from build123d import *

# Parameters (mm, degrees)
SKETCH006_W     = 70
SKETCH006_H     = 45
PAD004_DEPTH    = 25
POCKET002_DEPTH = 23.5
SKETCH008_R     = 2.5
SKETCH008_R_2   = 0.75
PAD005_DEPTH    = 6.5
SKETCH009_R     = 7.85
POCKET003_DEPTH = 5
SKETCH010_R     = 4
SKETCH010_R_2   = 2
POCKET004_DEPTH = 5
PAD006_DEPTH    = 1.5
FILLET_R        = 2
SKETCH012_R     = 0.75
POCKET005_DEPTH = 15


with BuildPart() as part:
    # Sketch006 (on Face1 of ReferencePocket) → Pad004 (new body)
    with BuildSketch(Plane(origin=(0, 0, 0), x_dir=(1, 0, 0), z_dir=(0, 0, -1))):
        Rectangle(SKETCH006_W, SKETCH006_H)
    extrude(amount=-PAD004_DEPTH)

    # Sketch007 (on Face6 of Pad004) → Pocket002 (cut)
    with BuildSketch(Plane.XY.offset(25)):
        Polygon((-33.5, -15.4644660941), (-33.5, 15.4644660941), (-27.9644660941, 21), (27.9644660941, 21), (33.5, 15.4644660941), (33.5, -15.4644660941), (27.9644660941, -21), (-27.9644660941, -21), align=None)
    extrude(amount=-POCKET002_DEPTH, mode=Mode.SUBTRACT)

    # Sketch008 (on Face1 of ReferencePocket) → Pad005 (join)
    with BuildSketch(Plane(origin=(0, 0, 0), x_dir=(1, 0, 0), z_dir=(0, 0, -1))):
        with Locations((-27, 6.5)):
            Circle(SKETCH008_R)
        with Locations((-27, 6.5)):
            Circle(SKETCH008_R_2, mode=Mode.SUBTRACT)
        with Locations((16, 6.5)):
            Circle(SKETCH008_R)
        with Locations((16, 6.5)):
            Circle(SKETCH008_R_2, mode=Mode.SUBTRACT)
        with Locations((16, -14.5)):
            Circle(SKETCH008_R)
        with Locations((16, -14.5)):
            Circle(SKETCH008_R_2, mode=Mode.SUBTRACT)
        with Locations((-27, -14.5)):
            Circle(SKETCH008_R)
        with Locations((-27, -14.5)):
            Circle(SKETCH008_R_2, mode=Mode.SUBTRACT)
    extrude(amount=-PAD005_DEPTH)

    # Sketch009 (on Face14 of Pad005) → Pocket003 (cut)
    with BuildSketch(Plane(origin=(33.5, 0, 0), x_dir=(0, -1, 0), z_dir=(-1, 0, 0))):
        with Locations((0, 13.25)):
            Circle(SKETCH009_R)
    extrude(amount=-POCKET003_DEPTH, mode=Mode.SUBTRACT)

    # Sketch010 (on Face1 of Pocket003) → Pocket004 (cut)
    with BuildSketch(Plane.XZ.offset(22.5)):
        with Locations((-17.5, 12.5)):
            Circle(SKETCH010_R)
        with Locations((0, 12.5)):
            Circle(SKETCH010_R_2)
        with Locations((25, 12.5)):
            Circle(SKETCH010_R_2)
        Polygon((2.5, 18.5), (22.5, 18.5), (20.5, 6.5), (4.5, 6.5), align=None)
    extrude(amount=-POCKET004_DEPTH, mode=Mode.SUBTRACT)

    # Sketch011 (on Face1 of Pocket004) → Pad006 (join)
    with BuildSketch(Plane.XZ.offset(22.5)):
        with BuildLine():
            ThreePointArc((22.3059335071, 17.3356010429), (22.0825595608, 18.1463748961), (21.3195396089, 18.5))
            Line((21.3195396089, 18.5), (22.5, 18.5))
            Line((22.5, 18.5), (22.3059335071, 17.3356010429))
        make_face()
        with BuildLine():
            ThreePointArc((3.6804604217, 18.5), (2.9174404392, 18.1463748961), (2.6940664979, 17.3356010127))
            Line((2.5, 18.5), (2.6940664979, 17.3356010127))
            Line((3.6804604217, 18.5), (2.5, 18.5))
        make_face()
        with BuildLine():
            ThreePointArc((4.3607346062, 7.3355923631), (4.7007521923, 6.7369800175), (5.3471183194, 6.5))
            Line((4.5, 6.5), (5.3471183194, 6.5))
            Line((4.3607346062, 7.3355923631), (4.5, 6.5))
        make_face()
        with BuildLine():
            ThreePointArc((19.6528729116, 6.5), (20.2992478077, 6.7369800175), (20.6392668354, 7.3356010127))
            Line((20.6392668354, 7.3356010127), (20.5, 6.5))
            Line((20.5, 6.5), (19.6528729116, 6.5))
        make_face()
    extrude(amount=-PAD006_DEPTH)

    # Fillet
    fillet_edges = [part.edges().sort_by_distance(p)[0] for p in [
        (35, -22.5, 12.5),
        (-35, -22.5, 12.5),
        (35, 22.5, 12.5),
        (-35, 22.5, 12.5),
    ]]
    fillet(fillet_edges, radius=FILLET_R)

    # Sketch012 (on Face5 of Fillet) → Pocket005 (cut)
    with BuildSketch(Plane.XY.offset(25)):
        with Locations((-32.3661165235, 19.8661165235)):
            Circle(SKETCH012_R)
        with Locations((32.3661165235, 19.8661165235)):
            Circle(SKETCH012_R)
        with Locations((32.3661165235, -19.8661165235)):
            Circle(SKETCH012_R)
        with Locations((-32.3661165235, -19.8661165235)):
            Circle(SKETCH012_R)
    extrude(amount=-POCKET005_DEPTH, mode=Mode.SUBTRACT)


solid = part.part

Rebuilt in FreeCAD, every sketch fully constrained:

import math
import FreeCAD as App
import Part
import Sketcher
Q = App.Units.Quantity


def edges_at(feature, points):
    """Names of the edges that pass closest to the given points."""
    edges = feature.Shape.Edges
    near = lambda p: min(range(len(edges)), key=lambda i: edges[i].distToShape(Part.Vertex(*p))[0])
    return sorted({f"Edge{near(p) + 1}" for p in points})


def add_polygon(sketch, points):
    """Adds a closed chain of lines whose ends are joined by coincident constraints."""
    first, n = sketch.GeometryCount, len(points)
    for a, b in zip(points, points[1:] + points[:1]):
        sketch.addGeometry(Part.LineSegment(App.Vector(*a, 0), App.Vector(*b, 0)), False)
    for i in range(n):
        sketch.addConstraint(Sketcher.Constraint("Coincident", first + i, 2, first + (i + 1) % n, 1))

doc = App.newDocument("Part")
body = doc.addObject("PartDesign::Body", "Body")

sketch1 = doc.addObject("Sketcher::SketchObject", "Sketch")
body.addObject(sketch1)
sketch1.AttachmentSupport = (doc.XY_Plane, [""])
sketch1.MapMode = "FlatFace"
add_polygon(sketch1, [(-35, -22), (-35, 22), (35, 22), (35, -22)])
sketch1.addConstraint(Sketcher.Constraint("Vertical", 0))
sketch1.addConstraint(Sketcher.Constraint("Horizontal", 1))
sketch1.addConstraint(Sketcher.Constraint("Vertical", 2))
sketch1.addConstraint(Sketcher.Constraint("Horizontal", 3))
sketch1.addConstraint(Sketcher.Constraint("Symmetric", 0, 2, 2, 2, -1, 1))
sketch1.addConstraint(Sketcher.Constraint("DistanceX", 1, 1, 1, 2, Q("70 mm")))
sketch1.addConstraint(Sketcher.Constraint("DistanceY", 0, 1, 0, 2, Q("45 mm")))
pad1 = doc.addObject("PartDesign::Pad", "Pad")
body.addObject(pad1)
pad1.Profile = sketch1
pad1.Length = 25

sketch2 = doc.addObject("Sketcher::SketchObject", "Sketch001")
body.addObject(sketch2)
sketch2.AttachmentSupport = (doc.XY_Plane, [""])
sketch2.MapMode = "FlatFace"
sketch2.AttachmentOffset = App.Placement(App.Vector(0, 0, 25), App.Rotation())
add_polygon(sketch2, [(-34, 15), (-34, -15), (-28, -21), (28, -21), (34, -15), (34, 15), (28, 21), (-28, 21)])
sketch2.addConstraint(Sketcher.Constraint("Vertical", 0))
sketch2.addConstraint(Sketcher.Constraint("Horizontal", 2))
sketch2.addConstraint(Sketcher.Constraint("Vertical", 4))
sketch2.addConstraint(Sketcher.Constraint("Horizontal", 6))
sketch2.addConstraint(Sketcher.Constraint("Symmetric", 0, 2, 4, 2, -1, 1))
sketch2.addConstraint(Sketcher.Constraint("Symmetric", 1, 2, 5, 2, -1, 1))
sketch2.addConstraint(Sketcher.Constraint("Perpendicular", 1, 3))
sketch2.addConstraint(Sketcher.Constraint("Perpendicular", 5, 7))
sketch2.addConstraint(Sketcher.Constraint("Horizontal", 0, 2, 3, 2))
sketch2.addConstraint(Sketcher.Constraint("Horizontal", 4, 2, 7, 2))
sketch2.addConstraint(Sketcher.Constraint("Vertical", 2, 2, 5, 2))
sketch2.addConstraint(Sketcher.Constraint("DistanceY", 1, 2, -1, 1, Q("21 mm")))
sketch2.addConstraint(Sketcher.Constraint("DistanceX", 0, 2, 3, 2, Q("67 mm")))
sketch2.addConstraint(Sketcher.Constraint("DistanceX", 2, 1, 2, 2, Q("55.928932 mm")))
pocket1 = doc.addObject("PartDesign::Pocket", "Pocket")
body.addObject(pocket1)
pocket1.Profile = sketch2
pocket1.Length = 23.5

sketch3 = doc.addObject("Sketcher::SketchObject", "Sketch002")
body.addObject(sketch3)
sketch3.AttachmentSupport = (doc.XY_Plane, [""])
sketch3.MapMode = "FlatFace"
sketch3.addGeometry(Part.Circle(App.Vector(-27, -6.5, 0), App.Vector(0, 0, 1), 2.5), False)
sketch3.addGeometry(Part.Circle(App.Vector(-27, -6.5, 0), App.Vector(0, 0, 1), 0.8), False)
sketch3.addGeometry(Part.Circle(App.Vector(16, -6.5, 0), App.Vector(0, 0, 1), 2.5), False)
sketch3.addGeometry(Part.Circle(App.Vector(16, -6.5, 0), App.Vector(0, 0, 1), 0.8), False)
sketch3.addGeometry(Part.Circle(App.Vector(16, 14.5, 0), App.Vector(0, 0, 1), 2.5), False)
sketch3.addGeometry(Part.Circle(App.Vector(16, 14.5, 0), App.Vector(0, 0, 1), 0.8), False)
sketch3.addGeometry(Part.Circle(App.Vector(-27, 14.5, 0), App.Vector(0, 0, 1), 2.5), False)
sketch3.addGeometry(Part.Circle(App.Vector(-27, 14.5, 0), App.Vector(0, 0, 1), 0.8), False)
sketch3.addConstraint(Sketcher.Constraint("Coincident", 1, 3, 0, 3))
sketch3.addConstraint(Sketcher.Constraint("Coincident", 3, 3, 2, 3))
sketch3.addConstraint(Sketcher.Constraint("Coincident", 5, 3, 4, 3))
sketch3.addConstraint(Sketcher.Constraint("Coincident", 7, 3, 6, 3))
sketch3.addConstraint(Sketcher.Constraint("Equal", 0, 2))
sketch3.addConstraint(Sketcher.Constraint("Equal", 1, 3))
sketch3.addConstraint(Sketcher.Constraint("Equal", 2, 4))
sketch3.addConstraint(Sketcher.Constraint("Equal", 3, 5))
sketch3.addConstraint(Sketcher.Constraint("Equal", 4, 6))
sketch3.addConstraint(Sketcher.Constraint("Equal", 5, 7))
sketch3.addConstraint(Sketcher.Constraint("Horizontal", 1, 3, 2, 3))
sketch3.addConstraint(Sketcher.Constraint("Horizontal", 5, 3, 6, 3))
sketch3.addConstraint(Sketcher.Constraint("Vertical", 3, 3, 4, 3))
sketch3.addConstraint(Sketcher.Constraint("Vertical", 1, 3, 6, 3))
sketch3.addConstraint(Sketcher.Constraint("Diameter", 0, Q("5 mm")))
sketch3.addConstraint(Sketcher.Constraint("Diameter", 1, Q("1.5 mm")))
sketch3.addConstraint(Sketcher.Constraint("DistanceX", 0, 3, -1, 1, Q("27 mm")))
sketch3.addConstraint(Sketcher.Constraint("DistanceX", -1, 1, 2, 3, Q("16 mm")))
sketch3.addConstraint(Sketcher.Constraint("DistanceY", 2, 3, 4, 3, Q("21 mm")))
sketch3.addConstraint(Sketcher.Constraint("DistanceY", 0, 3, -1, 1, Q("6.5 mm")))
pad2 = doc.addObject("PartDesign::Pad", "Pad001")
body.addObject(pad2)
pad2.Profile = sketch3
pad2.Length = 6.5

sketch4 = doc.addObject("Sketcher::SketchObject", "Sketch003")
body.addObject(sketch4)
sketch4.AttachmentSupport = (doc.YZ_Plane, [""])
sketch4.MapMode = "FlatFace"
sketch4.AttachmentOffset = App.Placement(App.Vector(0, 0, 33.5), App.Rotation())
sketch4.addGeometry(Part.Circle(App.Vector(0, 13, 0), App.Vector(0, 0, 1), 8), False)
sketch4.addConstraint(Sketcher.Constraint("PointOnObject", 0, 3, -2))
sketch4.addConstraint(Sketcher.Constraint("Diameter", 0, Q("15.7 mm")))
sketch4.addConstraint(Sketcher.Constraint("DistanceY", -1, 1, 0, 3, Q("13.25 mm")))
pocket2 = doc.addObject("PartDesign::Pocket", "Pocket001")
body.addObject(pocket2)
pocket2.Profile = sketch4
pocket2.Length = 5
pocket2.Reversed = True

sketch5 = doc.addObject("Sketcher::SketchObject", "Sketch004")
body.addObject(sketch5)
sketch5.AttachmentSupport = (doc.XZ_Plane, [""])
sketch5.MapMode = "FlatFace"
sketch5.AttachmentOffset = App.Placement(App.Vector(0, 0, 22.5), App.Rotation())
sketch5.addGeometry(Part.Circle(App.Vector(-17.5, 12.5, 0), App.Vector(0, 0, 1), 4), False)
sketch5.addGeometry(Part.Circle(App.Vector(0, 12.5, 0), App.Vector(0, 0, 1), 2), False)
sketch5.addGeometry(Part.Circle(App.Vector(25, 12.5, 0), App.Vector(0, 0, 1), 2), False)
add_polygon(sketch5, [(22.5, 18.5), (2.5, 18.5), (4.5, 6.5), (20.5, 6.5)])
sketch5.addConstraint(Sketcher.Constraint("Horizontal", 3))
sketch5.addConstraint(Sketcher.Constraint("Horizontal", 5))
sketch5.addConstraint(Sketcher.Constraint("Equal", 1, 2))
sketch5.addConstraint(Sketcher.Constraint("PointOnObject", 1, 3, -2))
sketch5.addConstraint(Sketcher.Constraint("Horizontal", 0, 3, 1, 3))
sketch5.addConstraint(Sketcher.Constraint("Horizontal", 1, 3, 2, 3))
sketch5.addConstraint(Sketcher.Constraint("Equal", 4, 6))
sketch5.addConstraint(Sketcher.Constraint("Diameter", 0, Q("8 mm")))
sketch5.addConstraint(Sketcher.Constraint("Diameter", 1, Q("4 mm")))
sketch5.addConstraint(Sketcher.Constraint("DistanceX", 3, 2, 3, 1, Q("20 mm")))
sketch5.addConstraint(Sketcher.Constraint("DistanceX", 5, 1, 5, 2, Q("16 mm")))
sketch5.addConstraint(Sketcher.Constraint("DistanceX", -1, 1, 2, 3, Q("25 mm")))
sketch5.addConstraint(Sketcher.Constraint("DistanceY", 1, 3, 3, 2, Q("6 mm")))
sketch5.addConstraint(Sketcher.Constraint("DistanceX", 0, 3, 3, 2, Q("20 mm")))
sketch5.addConstraint(Sketcher.Constraint("DistanceY", 4, 2, 1, 3, Q("6 mm")))
sketch5.addConstraint(Sketcher.Constraint("DistanceX", 0, 3, -1, 1, Q("17.5 mm")))
sketch5.addConstraint(Sketcher.Constraint("DistanceY", -1, 1, 0, 3, Q("12.5 mm")))
pocket3 = doc.addObject("PartDesign::Pocket", "Pocket002")
body.addObject(pocket3)
pocket3.Profile = sketch5
pocket3.Length = 5

sketch6 = doc.addObject("Sketcher::SketchObject", "Sketch005")
body.addObject(sketch6)
sketch6.AttachmentSupport = (doc.XZ_Plane, [""])
sketch6.MapMode = "FlatFace"
sketch6.AttachmentOffset = App.Placement(App.Vector(0, 0, 22.5), App.Rotation())
sketch6.addGeometry(Part.ArcOfCircle(Part.Circle(App.Vector(21.3, 17.5, 0), App.Vector(0, 0, 1), 1), math.radians(-9), math.radians(90)), False)
sketch6.addGeometry(Part.LineSegment(App.Vector(22.3, 17.3, 0), App.Vector(22.5, 18.5, 0)), False)
sketch6.addGeometry(Part.LineSegment(App.Vector(22.5, 18.5, 0), App.Vector(21.3, 18.5, 0)), False)
sketch6.addGeometry(Part.ArcOfCircle(Part.Circle(App.Vector(3.7, 17.5, 0), App.Vector(0, 0, 1), 1), math.radians(90), math.radians(189)), False)
sketch6.addGeometry(Part.LineSegment(App.Vector(3.7, 18.5, 0), App.Vector(2.5, 18.5, 0)), False)
sketch6.addGeometry(Part.LineSegment(App.Vector(2.5, 18.5, 0), App.Vector(2.7, 17.3, 0)), False)
sketch6.addGeometry(Part.ArcOfCircle(Part.Circle(App.Vector(5.3, 7.5, 0), App.Vector(0, 0, 1), 1), math.radians(-171), math.radians(-90)), False)
sketch6.addGeometry(Part.LineSegment(App.Vector(4.4, 7.3, 0), App.Vector(4.5, 6.5, 0)), False)
sketch6.addGeometry(Part.LineSegment(App.Vector(4.5, 6.5, 0), App.Vector(5.3, 6.5, 0)), False)
sketch6.addGeometry(Part.ArcOfCircle(Part.Circle(App.Vector(19.7, 7.5, 0), App.Vector(0, 0, 1), 1), math.radians(-90), math.radians(-9)), False)
sketch6.addGeometry(Part.LineSegment(App.Vector(19.7, 6.5, 0), App.Vector(20.5, 6.5, 0)), False)
sketch6.addGeometry(Part.LineSegment(App.Vector(20.5, 6.5, 0), App.Vector(20.6, 7.3, 0)), False)
sketch6.addConstraint(Sketcher.Constraint("Tangent", 0, 1, 1, 1))
sketch6.addConstraint(Sketcher.Constraint("Coincident", 1, 2, 2, 1))
sketch6.addConstraint(Sketcher.Constraint("Tangent", 2, 2, 0, 2))
sketch6.addConstraint(Sketcher.Constraint("Tangent", 3, 1, 4, 1))
sketch6.addConstraint(Sketcher.Constraint("Coincident", 4, 2, 5, 1))
sketch6.addConstraint(Sketcher.Constraint("Tangent", 5, 2, 3, 2))
sketch6.addConstraint(Sketcher.Constraint("Coincident", 6, 1, 7, 1))
sketch6.addConstraint(Sketcher.Constraint("Coincident", 7, 2, 8, 1))
sketch6.addConstraint(Sketcher.Constraint("Coincident", 8, 2, 6, 2))
sketch6.addConstraint(Sketcher.Constraint("Tangent", 9, 1, 10, 1))
sketch6.addConstraint(Sketcher.Constraint("Coincident", 10, 2, 11, 1))
sketch6.addConstraint(Sketcher.Constraint("Tangent", 11, 2, 9, 2))
sketch6.addConstraint(Sketcher.Constraint("Horizontal", 2))
sketch6.addConstraint(Sketcher.Constraint("Horizontal", 4))
sketch6.addConstraint(Sketcher.Constraint("Horizontal", 8))
sketch6.addConstraint(Sketcher.Constraint("Horizontal", 10))
sketch6.addConstraint(Sketcher.Constraint("Equal", 0, 3))
sketch6.addConstraint(Sketcher.Constraint("Equal", 3, 6))
sketch6.addConstraint(Sketcher.Constraint("Equal", 6, 9))
sketch6.addConstraint(Sketcher.Constraint("Parallel", 5, 7))
sketch6.addConstraint(Sketcher.Constraint("Parallel", 1, 11))
sketch6.addConstraint(Sketcher.Constraint("Horizontal", 0, 3, 3, 3))
sketch6.addConstraint(Sketcher.Constraint("Horizontal", 6, 3, 9, 3))
sketch6.addConstraint(Sketcher.Constraint("Horizontal", 0, 1, 5, 2))
sketch6.addConstraint(Sketcher.Constraint("Radius", 0, Q("1 mm")))
sketch6.addConstraint(Sketcher.Constraint("DistanceY", 6, 3, 3, 3, Q("10 mm")))
sketch6.addConstraint(Sketcher.Constraint("DistanceY", -1, 1, 0, 3, Q("17.5 mm")))
sketch6.addConstraint(Sketcher.Constraint("DistanceX", -1, 1, 1, 2, Q("22.5 mm")))
sketch6.addConstraint(Sketcher.Constraint("DistanceX", -1, 1, 4, 2, Q("2.5 mm")))
sketch6.addConstraint(Sketcher.Constraint("DistanceX", -1, 1, 7, 2, Q("4.5 mm")))
sketch6.addConstraint(Sketcher.Constraint("DistanceX", -1, 1, 10, 2, Q("20.5 mm")))
sketch6.addConstraint(Sketcher.Constraint("DistanceX", 2, 2, 2, 1, Q("1.18046 mm")))
sketch6.addConstraint(Sketcher.Constraint("DistanceX", 8, 1, 8, 2, Q("0.847118 mm")))
sketch6.addConstraint(Sketcher.Constraint("Distance", 7, Q("0.847118 mm")))
pad3 = doc.addObject("PartDesign::Pad", "Pad002")
body.addObject(pad3)
pad3.Profile = sketch6
pad3.Length = 1.5
pad3.Reversed = True
doc.recompute()

fillet = doc.addObject("PartDesign::Fillet", "Fillet")
body.addObject(fillet)
fillet.Base = (pad3, edges_at(pad3, [
    (35, -22.5, 12.5),
    (-35, -22.5, 12.5),
    (35, 22.5, 12.5),
    (-35, 22.5, 12.5),
]))
fillet.Radius = 2

sketch7 = doc.addObject("Sketcher::SketchObject", "Sketch006")
body.addObject(sketch7)
sketch7.AttachmentSupport = (doc.XY_Plane, [""])
sketch7.MapMode = "FlatFace"
sketch7.AttachmentOffset = App.Placement(App.Vector(0, 0, 25), App.Rotation())
sketch7.addGeometry(Part.Circle(App.Vector(-32.4, 19.9, 0), App.Vector(0, 0, 1), 0.8), False)
sketch7.addGeometry(Part.Circle(App.Vector(32.4, 19.9, 0), App.Vector(0, 0, 1), 0.8), False)
sketch7.addGeometry(Part.Circle(App.Vector(32.4, -19.9, 0), App.Vector(0, 0, 1), 0.8), False)
sketch7.addGeometry(Part.Circle(App.Vector(-32.4, -19.9, 0), App.Vector(0, 0, 1), 0.8), False)
sketch7.addConstraint(Sketcher.Constraint("Equal", 0, 1))
sketch7.addConstraint(Sketcher.Constraint("Equal", 1, 2))
sketch7.addConstraint(Sketcher.Constraint("Equal", 2, 3))
sketch7.addConstraint(Sketcher.Constraint("Symmetric", 0, 3, 2, 3, -1, 1))
sketch7.addConstraint(Sketcher.Constraint("Symmetric", 1, 3, 3, 3, -1, 1))
sketch7.addConstraint(Sketcher.Constraint("Symmetric", 0, 3, 1, 3, -2))
sketch7.addConstraint(Sketcher.Constraint("Diameter", 0, Q("1.5 mm")))
sketch7.addConstraint(Sketcher.Constraint("DistanceX", 0, 3, -1, 1, Q("32.366117 mm")))
sketch7.addConstraint(Sketcher.Constraint("DistanceY", -1, 1, 0, 3, Q("19.866117 mm")))
pocket4 = doc.addObject("PartDesign::Pocket", "Pocket003")
body.addObject(pocket4)
pocket4.Profile = sketch7
pocket4.Length = 15

doc.recompute()
